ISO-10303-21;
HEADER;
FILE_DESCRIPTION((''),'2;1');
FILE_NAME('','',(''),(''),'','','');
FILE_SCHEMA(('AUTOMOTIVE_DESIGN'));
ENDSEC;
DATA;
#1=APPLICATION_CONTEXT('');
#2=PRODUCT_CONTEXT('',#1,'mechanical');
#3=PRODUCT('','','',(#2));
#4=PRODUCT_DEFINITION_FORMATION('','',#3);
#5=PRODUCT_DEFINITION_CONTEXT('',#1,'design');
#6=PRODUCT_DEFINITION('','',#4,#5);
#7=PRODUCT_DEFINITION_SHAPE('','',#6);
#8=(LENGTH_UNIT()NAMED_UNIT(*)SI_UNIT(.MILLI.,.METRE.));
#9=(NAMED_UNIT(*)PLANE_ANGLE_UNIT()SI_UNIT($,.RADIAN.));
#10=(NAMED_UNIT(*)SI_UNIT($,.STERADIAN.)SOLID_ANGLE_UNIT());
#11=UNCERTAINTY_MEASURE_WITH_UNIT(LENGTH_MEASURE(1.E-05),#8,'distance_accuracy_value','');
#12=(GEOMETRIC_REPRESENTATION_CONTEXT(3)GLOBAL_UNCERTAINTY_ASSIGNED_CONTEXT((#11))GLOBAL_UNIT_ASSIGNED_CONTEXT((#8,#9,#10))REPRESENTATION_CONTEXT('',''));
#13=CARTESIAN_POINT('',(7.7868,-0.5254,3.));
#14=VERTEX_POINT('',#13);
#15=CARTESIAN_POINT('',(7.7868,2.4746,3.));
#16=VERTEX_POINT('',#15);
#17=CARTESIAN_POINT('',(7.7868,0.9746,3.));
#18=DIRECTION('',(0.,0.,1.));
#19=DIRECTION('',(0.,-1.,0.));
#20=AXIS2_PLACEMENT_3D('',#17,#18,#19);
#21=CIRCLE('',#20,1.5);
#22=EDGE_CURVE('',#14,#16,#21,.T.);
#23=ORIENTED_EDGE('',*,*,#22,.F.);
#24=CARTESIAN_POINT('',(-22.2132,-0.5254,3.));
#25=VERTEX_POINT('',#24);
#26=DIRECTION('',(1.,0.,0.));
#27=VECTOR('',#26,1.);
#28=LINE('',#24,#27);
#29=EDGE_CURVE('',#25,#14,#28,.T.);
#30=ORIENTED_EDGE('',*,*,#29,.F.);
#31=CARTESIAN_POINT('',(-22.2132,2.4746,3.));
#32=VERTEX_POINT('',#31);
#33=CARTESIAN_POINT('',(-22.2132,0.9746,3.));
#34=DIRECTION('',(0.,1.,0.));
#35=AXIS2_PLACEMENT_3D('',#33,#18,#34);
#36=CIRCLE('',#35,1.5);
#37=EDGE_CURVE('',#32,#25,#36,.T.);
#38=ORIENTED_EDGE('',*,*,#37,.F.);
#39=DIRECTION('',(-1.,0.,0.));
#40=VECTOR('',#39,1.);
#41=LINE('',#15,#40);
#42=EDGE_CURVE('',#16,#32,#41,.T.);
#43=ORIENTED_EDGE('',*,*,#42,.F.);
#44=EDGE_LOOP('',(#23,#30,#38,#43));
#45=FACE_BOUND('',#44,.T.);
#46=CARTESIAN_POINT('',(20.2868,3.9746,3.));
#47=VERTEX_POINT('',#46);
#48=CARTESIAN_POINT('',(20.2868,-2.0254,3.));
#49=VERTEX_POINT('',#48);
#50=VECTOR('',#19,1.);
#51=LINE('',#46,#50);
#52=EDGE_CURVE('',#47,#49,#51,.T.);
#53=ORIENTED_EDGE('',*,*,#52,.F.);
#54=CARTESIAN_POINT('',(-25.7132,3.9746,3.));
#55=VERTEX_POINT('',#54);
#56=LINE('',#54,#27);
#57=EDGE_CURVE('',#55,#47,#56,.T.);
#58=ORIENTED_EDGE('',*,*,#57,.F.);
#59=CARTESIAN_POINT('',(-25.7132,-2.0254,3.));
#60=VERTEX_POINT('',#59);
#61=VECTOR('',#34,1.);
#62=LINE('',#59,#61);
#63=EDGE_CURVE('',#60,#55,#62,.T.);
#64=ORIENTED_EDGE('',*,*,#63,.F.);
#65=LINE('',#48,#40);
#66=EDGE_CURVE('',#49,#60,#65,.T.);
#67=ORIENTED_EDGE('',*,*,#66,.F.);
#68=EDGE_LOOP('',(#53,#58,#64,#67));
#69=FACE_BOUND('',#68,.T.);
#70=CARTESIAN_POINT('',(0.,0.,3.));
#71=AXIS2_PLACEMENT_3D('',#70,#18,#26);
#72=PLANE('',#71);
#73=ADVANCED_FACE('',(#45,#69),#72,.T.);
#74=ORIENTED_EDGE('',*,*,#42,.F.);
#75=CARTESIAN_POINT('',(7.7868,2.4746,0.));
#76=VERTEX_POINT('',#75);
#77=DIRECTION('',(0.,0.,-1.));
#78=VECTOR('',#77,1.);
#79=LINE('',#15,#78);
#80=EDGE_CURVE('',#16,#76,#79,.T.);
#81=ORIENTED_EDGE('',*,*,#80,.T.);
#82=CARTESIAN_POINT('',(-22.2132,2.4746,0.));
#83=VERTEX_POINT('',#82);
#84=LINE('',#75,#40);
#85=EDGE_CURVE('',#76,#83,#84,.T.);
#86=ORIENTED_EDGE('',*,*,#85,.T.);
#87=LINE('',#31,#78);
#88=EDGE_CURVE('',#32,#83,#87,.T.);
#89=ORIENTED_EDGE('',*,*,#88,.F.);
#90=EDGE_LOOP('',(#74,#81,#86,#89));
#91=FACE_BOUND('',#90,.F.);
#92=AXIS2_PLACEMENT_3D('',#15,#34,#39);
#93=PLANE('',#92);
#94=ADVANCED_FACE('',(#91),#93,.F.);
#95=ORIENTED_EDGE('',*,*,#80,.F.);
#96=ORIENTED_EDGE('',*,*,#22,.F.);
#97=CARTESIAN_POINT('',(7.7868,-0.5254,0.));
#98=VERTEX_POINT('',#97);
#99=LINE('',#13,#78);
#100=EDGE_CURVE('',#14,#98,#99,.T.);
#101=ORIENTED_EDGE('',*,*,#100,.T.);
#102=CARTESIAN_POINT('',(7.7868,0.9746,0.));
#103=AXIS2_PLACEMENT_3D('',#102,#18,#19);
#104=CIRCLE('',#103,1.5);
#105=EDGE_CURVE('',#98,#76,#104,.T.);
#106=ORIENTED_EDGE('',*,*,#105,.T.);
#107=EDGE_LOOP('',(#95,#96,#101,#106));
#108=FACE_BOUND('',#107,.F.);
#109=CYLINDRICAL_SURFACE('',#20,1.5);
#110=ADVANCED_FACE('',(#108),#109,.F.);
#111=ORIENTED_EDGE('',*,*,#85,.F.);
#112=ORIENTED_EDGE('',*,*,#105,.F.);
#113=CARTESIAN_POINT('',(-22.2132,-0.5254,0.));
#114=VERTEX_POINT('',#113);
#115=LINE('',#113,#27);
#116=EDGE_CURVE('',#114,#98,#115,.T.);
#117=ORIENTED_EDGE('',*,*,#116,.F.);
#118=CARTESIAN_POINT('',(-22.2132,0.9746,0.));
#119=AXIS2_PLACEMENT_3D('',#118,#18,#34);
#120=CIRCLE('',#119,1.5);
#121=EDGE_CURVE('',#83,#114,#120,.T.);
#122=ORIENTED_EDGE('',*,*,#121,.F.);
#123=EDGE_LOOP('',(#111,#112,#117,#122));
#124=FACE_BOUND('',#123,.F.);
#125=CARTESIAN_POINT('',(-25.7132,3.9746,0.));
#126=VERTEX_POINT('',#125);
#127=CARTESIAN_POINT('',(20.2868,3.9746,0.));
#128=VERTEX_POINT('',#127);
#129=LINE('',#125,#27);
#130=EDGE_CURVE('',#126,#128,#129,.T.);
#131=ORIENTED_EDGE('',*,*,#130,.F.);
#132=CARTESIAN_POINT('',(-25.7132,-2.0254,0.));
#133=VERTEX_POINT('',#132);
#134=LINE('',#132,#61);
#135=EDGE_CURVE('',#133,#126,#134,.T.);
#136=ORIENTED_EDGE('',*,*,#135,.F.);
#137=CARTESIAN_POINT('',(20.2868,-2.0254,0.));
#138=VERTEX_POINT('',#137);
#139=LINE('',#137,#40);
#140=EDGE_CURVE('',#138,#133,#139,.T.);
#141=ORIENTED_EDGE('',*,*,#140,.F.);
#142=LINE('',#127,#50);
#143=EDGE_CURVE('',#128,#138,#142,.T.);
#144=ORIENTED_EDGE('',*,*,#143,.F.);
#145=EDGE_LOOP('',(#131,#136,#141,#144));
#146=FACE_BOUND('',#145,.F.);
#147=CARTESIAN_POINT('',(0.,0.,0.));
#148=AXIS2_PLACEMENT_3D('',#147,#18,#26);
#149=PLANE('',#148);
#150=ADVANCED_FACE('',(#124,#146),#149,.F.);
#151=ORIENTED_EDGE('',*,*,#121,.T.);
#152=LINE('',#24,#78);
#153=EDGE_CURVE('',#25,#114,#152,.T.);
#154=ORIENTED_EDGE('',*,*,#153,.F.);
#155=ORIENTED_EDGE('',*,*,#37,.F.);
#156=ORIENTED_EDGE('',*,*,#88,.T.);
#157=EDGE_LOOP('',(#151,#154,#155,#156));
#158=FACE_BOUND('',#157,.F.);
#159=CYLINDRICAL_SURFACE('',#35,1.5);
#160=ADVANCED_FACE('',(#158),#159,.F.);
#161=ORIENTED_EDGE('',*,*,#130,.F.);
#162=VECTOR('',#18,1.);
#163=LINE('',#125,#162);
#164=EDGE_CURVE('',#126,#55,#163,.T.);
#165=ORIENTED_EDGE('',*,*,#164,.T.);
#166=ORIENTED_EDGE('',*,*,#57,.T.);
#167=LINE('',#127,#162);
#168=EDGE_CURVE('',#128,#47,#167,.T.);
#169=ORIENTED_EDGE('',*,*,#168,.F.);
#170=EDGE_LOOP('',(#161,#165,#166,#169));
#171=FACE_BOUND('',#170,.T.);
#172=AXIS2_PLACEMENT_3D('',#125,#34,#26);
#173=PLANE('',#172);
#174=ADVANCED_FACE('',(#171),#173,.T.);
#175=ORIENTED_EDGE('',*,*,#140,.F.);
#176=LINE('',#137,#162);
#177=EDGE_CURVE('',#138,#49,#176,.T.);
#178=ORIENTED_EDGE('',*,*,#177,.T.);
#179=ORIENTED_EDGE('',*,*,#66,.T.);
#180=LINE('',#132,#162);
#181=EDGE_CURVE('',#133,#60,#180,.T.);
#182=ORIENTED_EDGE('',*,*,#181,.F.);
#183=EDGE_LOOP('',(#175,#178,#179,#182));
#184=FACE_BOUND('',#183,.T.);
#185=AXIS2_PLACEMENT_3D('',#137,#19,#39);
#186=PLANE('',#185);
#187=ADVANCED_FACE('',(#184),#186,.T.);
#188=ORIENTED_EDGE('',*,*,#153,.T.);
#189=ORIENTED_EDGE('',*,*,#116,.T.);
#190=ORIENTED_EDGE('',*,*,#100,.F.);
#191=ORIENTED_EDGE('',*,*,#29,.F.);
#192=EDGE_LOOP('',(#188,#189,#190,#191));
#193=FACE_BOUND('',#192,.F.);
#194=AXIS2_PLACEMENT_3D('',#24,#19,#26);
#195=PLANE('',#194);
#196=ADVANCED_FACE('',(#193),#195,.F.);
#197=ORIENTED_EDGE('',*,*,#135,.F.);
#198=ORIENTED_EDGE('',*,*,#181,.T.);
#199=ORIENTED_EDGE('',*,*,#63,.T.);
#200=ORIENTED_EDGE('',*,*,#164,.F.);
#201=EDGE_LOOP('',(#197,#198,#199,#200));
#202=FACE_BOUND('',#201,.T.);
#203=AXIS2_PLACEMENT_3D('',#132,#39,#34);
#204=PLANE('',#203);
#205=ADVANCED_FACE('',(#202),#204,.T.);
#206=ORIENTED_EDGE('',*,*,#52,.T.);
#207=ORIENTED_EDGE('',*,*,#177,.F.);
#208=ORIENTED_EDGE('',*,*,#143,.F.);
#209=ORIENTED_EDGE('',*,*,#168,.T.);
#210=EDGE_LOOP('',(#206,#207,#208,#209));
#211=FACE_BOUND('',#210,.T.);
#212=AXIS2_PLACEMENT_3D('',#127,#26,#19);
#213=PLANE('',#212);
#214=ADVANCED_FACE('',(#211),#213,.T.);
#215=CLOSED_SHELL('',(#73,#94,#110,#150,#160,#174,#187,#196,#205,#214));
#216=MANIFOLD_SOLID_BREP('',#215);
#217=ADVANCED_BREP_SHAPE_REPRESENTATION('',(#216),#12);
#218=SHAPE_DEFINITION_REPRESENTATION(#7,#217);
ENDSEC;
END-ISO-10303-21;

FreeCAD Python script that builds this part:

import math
import FreeCAD as App
import Part
import Sketcher

doc = App.newDocument("Part")
body = doc.addObject("PartDesign::Body", "Body")

sketch1 = doc.addObject("Sketcher::SketchObject", "Sketch")
body.addObject(sketch1)
sketch1.AttachmentSupport = (doc.XY_Plane, [""])
sketch1.MapMode = "FlatFace"
sketch1.addGeometry(Part.LineSegment(App.Vector(20.2868, 3.9746, 0), App.Vector(-25.7132, 3.9746, 0)), False)
sketch1.addGeometry(Part.LineSegment(App.Vector(-25.7132, 3.9746, 0), App.Vector(-25.7132, -2.0254, 0)), False)
sketch1.addGeometry(Part.LineSegment(App.Vector(-25.7132, -2.0254, 0), App.Vector(20.2868, -2.0254, 0)), False)
sketch1.addGeometry(Part.LineSegment(App.Vector(20.2868, -2.0254, 0), App.Vector(20.2868, 3.9746, 0)), False)
sketch1.addConstraint(Sketcher.Constraint("Coincident", 0, 2, 1, 1))
sketch1.addConstraint(Sketcher.Constraint("Coincident", 1, 2, 2, 1))
sketch1.addConstraint(Sketcher.Constraint("Coincident", 2, 2, 3, 1))
sketch1.addConstraint(Sketcher.Constraint("Coincident", 3, 2, 0, 1))
sketch1.addConstraint(Sketcher.Constraint("Horizontal", 0))
sketch1.addConstraint(Sketcher.Constraint("Vertical", 1))
sketch1.addConstraint(Sketcher.Constraint("Horizontal", 2))
sketch1.addConstraint(Sketcher.Constraint("Vertical", 3))
sketch1.addConstraint(Sketcher.Constraint("DistanceX", 0, 2, 0, 1, 46.0))
sketch1.addConstraint(Sketcher.Constraint("DistanceY", 1, 2, 1, 1, 6.0))
sketch1.addConstraint(Sketcher.Constraint("DistanceX", 0, 2, -1, 1, 25.7132))
sketch1.addConstraint(Sketcher.Constraint("DistanceY", -1, 1, 0, 2, 3.9746))
pad1 = doc.addObject("PartDesign::Pad", "Pad")
body.addObject(pad1)
pad1.Profile = sketch1
pad1.Length = 3

sketch2 = doc.addObject("Sketcher::SketchObject", "Sketch001")
body.addObject(sketch2)
sketch2.AttachmentSupport = (doc.XY_Plane, [""])
sketch2.MapMode = "FlatFace"
sketch2.AttachmentOffset = App.Placement(App.Vector(0, 0, 3), App.Rotation())
sketch2.addGeometry(Part.ArcOfCircle(Part.Circle(App.Vector(-22.2132, 0.9746, 0), App.Vector(0, 0, 1), 1.5), math.radians(90), math.radians(270)), False)
sketch2.addGeometry(Part.LineSegment(App.Vector(-22.2132, -0.5254, 0), App.Vector(7.7868, -0.5254, 0)), False)
sketch2.addGeometry(Part.ArcOfCircle(Part.Circle(App.Vector(7.7868, 0.9746, 0), App.Vector(0, 0, 1), 1.5), math.radians(-90), math.radians(90)), False)
sketch2.addGeometry(Part.LineSegment(App.Vector(7.7868, 2.4746, 0), App.Vector(-22.2132, 2.4746, 0)), False)
sketch2.addConstraint(Sketcher.Constraint("Tangent", 0, 2, 1, 1))
sketch2.addConstraint(Sketcher.Constraint("Tangent", 1, 2, 2, 1))
sketch2.addConstraint(Sketcher.Constraint("Tangent", 2, 2, 3, 1))
sketch2.addConstraint(Sketcher.Constraint("Tangent", 3, 2, 0, 1))
sketch2.addConstraint(Sketcher.Constraint("Horizontal", 1))
sketch2.addConstraint(Sketcher.Constraint("Horizontal", 3))
sketch2.addConstraint(Sketcher.Constraint("Radius", 0, 1.5))
sketch2.addConstraint(Sketcher.Constraint("DistanceX", 1, 1, 1, 2, 30.0))
sketch2.addConstraint(Sketcher.Constraint("DistanceX", 0, 3, -1, 1, 22.2132))
sketch2.addConstraint(Sketcher.Constraint("DistanceY", -1, 1, 0, 3, 0.9746))
pocket1 = doc.addObject("PartDesign::Pocket", "Pocket")
body.addObject(pocket1)
pocket1.Profile = sketch2
pocket1.Length = 3

doc.recompute()
